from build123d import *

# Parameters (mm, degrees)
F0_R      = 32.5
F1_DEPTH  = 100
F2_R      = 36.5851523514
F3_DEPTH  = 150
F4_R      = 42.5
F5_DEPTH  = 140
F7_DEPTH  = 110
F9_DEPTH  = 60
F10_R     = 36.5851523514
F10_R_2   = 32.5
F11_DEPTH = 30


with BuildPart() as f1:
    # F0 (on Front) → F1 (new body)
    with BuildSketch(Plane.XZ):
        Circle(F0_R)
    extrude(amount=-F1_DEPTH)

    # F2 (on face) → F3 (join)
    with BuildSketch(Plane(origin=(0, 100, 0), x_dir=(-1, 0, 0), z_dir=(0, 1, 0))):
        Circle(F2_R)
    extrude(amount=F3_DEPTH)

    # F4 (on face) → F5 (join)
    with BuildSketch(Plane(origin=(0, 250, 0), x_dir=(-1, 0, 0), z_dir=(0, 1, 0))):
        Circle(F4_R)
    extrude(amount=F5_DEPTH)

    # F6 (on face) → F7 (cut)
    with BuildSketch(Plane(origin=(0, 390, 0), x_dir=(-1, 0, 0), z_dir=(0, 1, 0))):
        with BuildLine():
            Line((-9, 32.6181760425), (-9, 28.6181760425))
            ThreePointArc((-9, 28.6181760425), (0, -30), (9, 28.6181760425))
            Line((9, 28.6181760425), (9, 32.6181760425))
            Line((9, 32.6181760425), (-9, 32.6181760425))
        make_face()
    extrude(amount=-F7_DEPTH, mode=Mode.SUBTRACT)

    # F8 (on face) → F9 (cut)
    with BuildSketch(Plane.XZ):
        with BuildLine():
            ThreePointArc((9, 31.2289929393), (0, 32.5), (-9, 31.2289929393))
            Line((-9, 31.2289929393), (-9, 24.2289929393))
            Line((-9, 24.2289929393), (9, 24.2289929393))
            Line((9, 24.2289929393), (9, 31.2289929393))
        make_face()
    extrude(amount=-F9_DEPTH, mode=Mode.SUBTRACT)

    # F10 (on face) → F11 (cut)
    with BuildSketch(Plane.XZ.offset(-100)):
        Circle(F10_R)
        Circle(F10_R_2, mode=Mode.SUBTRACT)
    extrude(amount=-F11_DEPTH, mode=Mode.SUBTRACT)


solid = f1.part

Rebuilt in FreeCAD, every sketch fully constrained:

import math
import FreeCAD as App
import Part
import Sketcher

doc = App.newDocument("Part")
body = doc.addObject("PartDesign::Body", "Body")

# Sketch on XZ plane
sketch1 = body.newObject("Sketcher::SketchObject", "Sketch")
sketch1.AttachmentSupport = (doc.getObject("XZ_Plane"), [""])
sketch1.MapMode = "FlatFace"
sketch1.addGeometry(Part.Circle(App.Vector(0, 0, 0), App.Vector(0, 0, 1), 32), False)
sketch1.addConstraint([
    Sketcher.Constraint("Coincident", 0, 3, -1, 1),
    Sketcher.Constraint("Diameter", 0, 65.0),
])
pad1 = body.newObject("PartDesign::Pad", "Pad")
pad1.Profile = sketch1
pad1.Length = 100
pad1.Reversed = True

# Sketch on XZ plane
sketch2 = body.newObject("Sketcher::SketchObject", "Sketch001")
sketch2.AttachmentSupport = (doc.getObject("XZ_Plane"), [""])
sketch2.MapMode = "FlatFace"
sketch2.AttachmentOffset = App.Placement(App.Vector(0, 0, -100), App.Rotation())
sketch2.addGeometry(Part.Circle(App.Vector(0, 0, 0), App.Vector(0, 0, 1), 37), False)
sketch2.addConstraint([
    Sketcher.Constraint("Coincident", 0, 3, -1, 1),
    Sketcher.Constraint("Diameter", 0, 73.170305),
])
pad2 = body.newObject("PartDesign::Pad", "Pad001")
pad2.Profile = sketch2
pad2.Length = 150
pad2.Reversed = True

# Sketch on XZ plane
sketch3 = body.newObject("Sketcher::SketchObject", "Sketch002")
sketch3.AttachmentSupport = (doc.getObject("XZ_Plane"), [""])
sketch3.MapMode = "FlatFace"
sketch3.AttachmentOffset = App.Placement(App.Vector(0, 0, -250), App.Rotation())
sketch3.addGeometry(Part.Circle(App.Vector(0, 0, 0), App.Vector(0, 0, 1), 42), False)
sketch3.addConstraint([
    Sketcher.Constraint("Coincident", 0, 3, -1, 1),
    Sketcher.Constraint("Diameter", 0, 85.0),
])
pad3 = body.newObject("PartDesign::Pad", "Pad002")
pad3.Profile = sketch3
pad3.Length = 140
pad3.Reversed = True

# Sketch on XZ plane
sketch4 = body.newObject("Sketcher::SketchObject", "Sketch003")
sketch4.AttachmentSupport = (doc.getObject("XZ_Plane"), [""])
sketch4.MapMode = "FlatFace"
sketch4.AttachmentOffset = App.Placement(App.Vector(0, 0, -390), App.Rotation())
sketch4.addGeometry([
    Part.LineSegment(App.Vector(9, 32.6, 0), App.Vector(9, 28.6, 0)),
    Part.ArcOfCircle(Part.Circle(App.Vector(0, 0, 0), App.Vector(0, 0, 1), 30), math.radians(107), math.radians(433)),
    Part.LineSegment(App.Vector(-9, 28.6, 0), App.Vector(-9, 32.6, 0)),
    Part.LineSegment(App.Vector(-9, 32.6, 0), App.Vector(9, 32.6, 0)),
], False)
sketch4.addConstraint([
    Sketcher.Constraint("Coincident", 0, 2, 1, 2),
    Sketcher.Constraint("Coincident", 1, 1, 2, 1),
    Sketcher.Constraint("Coincident", 2, 2, 3, 1),
    Sketcher.Constraint("Coincident", 3, 2, 0, 1),
    Sketcher.Constraint("Vertical", 0),
    Sketcher.Constraint("Vertical", 2),
    Sketcher.Constraint("Horizontal", 3),
    Sketcher.Constraint("Coincident", 1, 3, -1, 1),
    Sketcher.Constraint("Horizontal", 0, 2, 1, 1),
    Sketcher.Constraint("Radius", 1, 30.0),
    Sketcher.Constraint("DistanceX", 3, 1, 3, 2, 18.0),
    Sketcher.Constraint("DistanceY", 0, 2, 0, 1, 4.0),
])
pocket1 = body.newObject("PartDesign::Pocket", "Pocket")
pocket1.Profile = sketch4
pocket1.Length = 110
pocket1.Reversed = True

# Sketch on XZ plane
sketch5 = body.newObject("Sketcher::SketchObject", "Sketch004")
sketch5.AttachmentSupport = (doc.getObject("XZ_Plane"), [""])
sketch5.MapMode = "FlatFace"
sketch5.addGeometry([
    Part.ArcOfCircle(Part.Circle(App.Vector(0, 0, 0), App.Vector(0, 0, 1), 33), math.radians(74), math.radians(106)),
    Part.LineSegment(App.Vector(-9, 31, 0), App.Vector(-9, 24, 0)),
    Part.LineSegment(App.Vector(-9, 24, 0), App.Vector(9, 24, 0)),
    Part.LineSegment(App.Vector(9, 24, 0), App.Vector(9, 31, 0)),
], False)
sketch5.addConstraint([
    Sketcher.Constraint("Coincident", 0, 2, 1, 1),
    Sketcher.Constraint("Coincident", 1, 2, 2, 1),
    Sketcher.Constraint("Coincident", 2, 2, 3, 1),
    Sketcher.Constraint("Coincident", 3, 2, 0, 1),
    Sketcher.Constraint("Vertical", 1),
    Sketcher.Constraint("Horizontal", 2),
    Sketcher.Constraint("Vertical", 3),
    Sketcher.Constraint("Coincident", 0, 3, -1, 1),
    Sketcher.Constraint("Horizontal", 0, 2, 3, 2),
    Sketcher.Constraint("Radius", 0, 32.5),
    Sketcher.Constraint("DistanceX", 2, 1, 2, 2, 18.0),
    Sketcher.Constraint("DistanceY", 1, 2, 1, 1, 7.0),
])
pocket2 = body.newObject("PartDesign::Pocket", "Pocket001")
pocket2.Profile = sketch5
pocket2.Length = 60

# Sketch on XZ plane
sketch6 = body.newObject("Sketcher::SketchObject", "Sketch005")
sketch6.AttachmentSupport = (doc.getObject("XZ_Plane"), [""])
sketch6.MapMode = "FlatFace"
sketch6.AttachmentOffset = App.Placement(App.Vector(0, 0, -100), App.Rotation())
sketch6.addGeometry([
    Part.Circle(App.Vector(0, 0, 0), App.Vector(0, 0, 1), 37),
    Part.Circle(App.Vector(0, 0, 0), App.Vector(0, 0, 1), 32),
], False)
sketch6.addConstraint([
    Sketcher.Constraint("Coincident", 0, 3, -1, 1),
    Sketcher.Constraint("Coincident", 1, 3, -1, 1),
    Sketcher.Constraint("Diameter", 1, 65.0),
    Sketcher.Constraint("Diameter", 0, 73.170305),
])
pocket3 = body.newObject("PartDesign::Pocket", "Pocket002")
pocket3.Profile = sketch6
pocket3.Length = 30

doc.recompute()
